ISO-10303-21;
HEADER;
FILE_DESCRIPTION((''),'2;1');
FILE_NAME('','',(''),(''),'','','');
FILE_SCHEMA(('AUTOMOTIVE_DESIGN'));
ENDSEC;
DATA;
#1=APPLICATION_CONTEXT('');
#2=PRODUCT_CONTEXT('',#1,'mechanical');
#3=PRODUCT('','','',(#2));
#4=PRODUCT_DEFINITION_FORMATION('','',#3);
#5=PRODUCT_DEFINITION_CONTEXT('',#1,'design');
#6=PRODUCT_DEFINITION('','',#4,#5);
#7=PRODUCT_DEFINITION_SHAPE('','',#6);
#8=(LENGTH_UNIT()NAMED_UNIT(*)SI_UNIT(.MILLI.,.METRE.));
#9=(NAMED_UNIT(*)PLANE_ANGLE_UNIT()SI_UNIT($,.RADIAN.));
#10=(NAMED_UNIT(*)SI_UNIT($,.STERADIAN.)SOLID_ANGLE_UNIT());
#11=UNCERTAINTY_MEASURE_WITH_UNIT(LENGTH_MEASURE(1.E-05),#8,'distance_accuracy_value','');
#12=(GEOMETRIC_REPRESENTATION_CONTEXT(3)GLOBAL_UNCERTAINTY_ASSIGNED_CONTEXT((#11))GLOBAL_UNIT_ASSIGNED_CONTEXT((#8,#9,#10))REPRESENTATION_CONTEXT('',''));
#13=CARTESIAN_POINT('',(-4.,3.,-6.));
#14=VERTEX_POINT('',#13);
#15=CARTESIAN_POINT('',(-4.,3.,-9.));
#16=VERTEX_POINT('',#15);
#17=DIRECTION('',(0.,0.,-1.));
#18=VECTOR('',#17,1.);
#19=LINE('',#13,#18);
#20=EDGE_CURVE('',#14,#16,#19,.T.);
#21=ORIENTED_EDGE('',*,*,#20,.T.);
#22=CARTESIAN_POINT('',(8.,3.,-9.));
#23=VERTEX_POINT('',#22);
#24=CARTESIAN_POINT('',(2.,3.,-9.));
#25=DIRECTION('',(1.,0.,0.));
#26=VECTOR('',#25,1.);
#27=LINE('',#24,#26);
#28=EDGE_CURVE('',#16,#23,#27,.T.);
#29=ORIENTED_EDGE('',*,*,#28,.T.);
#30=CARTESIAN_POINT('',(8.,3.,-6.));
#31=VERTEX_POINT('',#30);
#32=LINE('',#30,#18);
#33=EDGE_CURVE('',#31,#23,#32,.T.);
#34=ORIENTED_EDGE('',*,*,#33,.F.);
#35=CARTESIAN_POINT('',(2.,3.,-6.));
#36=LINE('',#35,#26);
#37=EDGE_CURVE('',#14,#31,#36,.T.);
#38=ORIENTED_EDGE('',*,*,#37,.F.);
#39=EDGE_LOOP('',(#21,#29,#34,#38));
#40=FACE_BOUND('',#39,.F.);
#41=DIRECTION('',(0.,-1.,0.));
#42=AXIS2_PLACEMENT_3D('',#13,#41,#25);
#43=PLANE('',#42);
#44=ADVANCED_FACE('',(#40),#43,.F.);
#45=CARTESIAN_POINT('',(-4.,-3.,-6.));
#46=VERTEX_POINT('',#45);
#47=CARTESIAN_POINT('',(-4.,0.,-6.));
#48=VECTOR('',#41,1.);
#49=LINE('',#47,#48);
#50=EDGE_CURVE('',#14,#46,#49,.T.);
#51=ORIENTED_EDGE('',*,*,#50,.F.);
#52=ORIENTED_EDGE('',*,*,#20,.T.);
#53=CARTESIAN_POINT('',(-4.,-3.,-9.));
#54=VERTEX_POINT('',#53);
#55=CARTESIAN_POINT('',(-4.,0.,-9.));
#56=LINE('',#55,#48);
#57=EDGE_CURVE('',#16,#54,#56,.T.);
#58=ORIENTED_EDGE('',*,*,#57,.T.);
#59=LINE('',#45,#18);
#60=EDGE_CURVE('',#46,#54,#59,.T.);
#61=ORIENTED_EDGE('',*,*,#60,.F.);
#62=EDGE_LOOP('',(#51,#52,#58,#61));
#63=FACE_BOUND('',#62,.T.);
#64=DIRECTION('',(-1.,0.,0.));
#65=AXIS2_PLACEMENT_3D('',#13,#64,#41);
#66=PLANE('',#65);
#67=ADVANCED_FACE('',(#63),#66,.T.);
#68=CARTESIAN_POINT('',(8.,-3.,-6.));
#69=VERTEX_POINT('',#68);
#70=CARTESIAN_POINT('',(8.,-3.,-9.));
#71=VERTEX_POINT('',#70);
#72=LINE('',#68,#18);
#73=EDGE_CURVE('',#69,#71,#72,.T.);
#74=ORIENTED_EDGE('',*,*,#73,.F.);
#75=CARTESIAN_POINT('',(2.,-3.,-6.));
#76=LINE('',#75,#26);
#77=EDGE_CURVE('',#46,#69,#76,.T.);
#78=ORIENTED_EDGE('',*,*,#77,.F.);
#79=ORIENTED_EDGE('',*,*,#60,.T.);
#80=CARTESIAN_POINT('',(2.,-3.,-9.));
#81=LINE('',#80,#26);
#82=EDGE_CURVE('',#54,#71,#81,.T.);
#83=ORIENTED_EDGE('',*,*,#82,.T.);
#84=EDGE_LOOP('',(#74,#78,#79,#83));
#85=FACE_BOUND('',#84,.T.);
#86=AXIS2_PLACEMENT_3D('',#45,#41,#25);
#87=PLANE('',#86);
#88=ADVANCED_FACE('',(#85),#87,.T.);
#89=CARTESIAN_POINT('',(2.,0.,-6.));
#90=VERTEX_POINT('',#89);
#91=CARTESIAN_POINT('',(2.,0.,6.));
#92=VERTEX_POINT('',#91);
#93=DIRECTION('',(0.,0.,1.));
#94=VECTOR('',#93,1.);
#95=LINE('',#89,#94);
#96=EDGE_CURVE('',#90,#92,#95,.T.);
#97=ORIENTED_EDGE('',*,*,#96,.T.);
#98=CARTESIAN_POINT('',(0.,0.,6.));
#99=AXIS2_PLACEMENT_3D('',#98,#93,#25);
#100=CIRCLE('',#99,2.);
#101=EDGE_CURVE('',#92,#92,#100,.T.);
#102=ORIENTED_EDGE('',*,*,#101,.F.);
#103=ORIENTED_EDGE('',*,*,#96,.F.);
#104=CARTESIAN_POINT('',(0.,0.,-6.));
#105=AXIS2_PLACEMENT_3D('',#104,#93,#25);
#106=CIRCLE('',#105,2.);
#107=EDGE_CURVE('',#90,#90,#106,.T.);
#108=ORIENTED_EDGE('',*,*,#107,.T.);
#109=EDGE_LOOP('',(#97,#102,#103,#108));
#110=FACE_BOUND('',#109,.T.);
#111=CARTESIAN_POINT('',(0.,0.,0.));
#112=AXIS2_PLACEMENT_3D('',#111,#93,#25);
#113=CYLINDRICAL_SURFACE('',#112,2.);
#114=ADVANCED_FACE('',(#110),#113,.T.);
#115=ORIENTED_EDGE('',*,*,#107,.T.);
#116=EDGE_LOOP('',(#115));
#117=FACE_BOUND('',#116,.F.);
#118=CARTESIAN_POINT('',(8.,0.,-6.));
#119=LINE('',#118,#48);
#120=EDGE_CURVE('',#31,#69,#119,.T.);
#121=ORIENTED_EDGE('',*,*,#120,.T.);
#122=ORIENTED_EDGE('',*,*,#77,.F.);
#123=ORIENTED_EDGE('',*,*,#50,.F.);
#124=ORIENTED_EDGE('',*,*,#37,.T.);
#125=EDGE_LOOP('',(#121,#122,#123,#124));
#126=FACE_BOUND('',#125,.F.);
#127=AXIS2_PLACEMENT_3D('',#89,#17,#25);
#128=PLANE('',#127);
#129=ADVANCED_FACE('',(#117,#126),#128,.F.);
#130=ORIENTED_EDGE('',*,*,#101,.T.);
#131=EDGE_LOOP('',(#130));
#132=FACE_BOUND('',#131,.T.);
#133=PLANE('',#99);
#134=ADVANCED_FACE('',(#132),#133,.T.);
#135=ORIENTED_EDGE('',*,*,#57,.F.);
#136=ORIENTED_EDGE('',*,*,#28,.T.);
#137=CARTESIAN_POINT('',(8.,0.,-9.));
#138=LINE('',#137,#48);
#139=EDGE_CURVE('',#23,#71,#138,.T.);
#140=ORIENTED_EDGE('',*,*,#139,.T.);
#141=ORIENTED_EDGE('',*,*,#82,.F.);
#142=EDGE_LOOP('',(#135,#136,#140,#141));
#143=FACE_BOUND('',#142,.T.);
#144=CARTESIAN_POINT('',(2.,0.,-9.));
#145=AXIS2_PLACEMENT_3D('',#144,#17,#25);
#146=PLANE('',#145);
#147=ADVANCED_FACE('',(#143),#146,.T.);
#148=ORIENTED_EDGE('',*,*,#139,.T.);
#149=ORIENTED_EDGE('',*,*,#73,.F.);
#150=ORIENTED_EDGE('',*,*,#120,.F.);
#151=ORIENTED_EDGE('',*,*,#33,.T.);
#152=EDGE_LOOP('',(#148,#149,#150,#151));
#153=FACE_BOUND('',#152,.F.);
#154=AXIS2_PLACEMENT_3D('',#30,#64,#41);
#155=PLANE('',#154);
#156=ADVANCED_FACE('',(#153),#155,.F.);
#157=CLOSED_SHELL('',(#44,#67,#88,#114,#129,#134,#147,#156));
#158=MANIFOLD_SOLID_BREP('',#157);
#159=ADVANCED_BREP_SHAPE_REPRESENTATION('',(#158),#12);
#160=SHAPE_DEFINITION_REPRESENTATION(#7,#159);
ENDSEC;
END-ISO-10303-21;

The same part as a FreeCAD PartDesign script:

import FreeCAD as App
import Part
import Sketcher
Q = App.Units.Quantity

doc = App.newDocument("Part")
body = doc.addObject("PartDesign::Body", "Body")

sketch1 = doc.addObject("Sketcher::SketchObject", "Sketch")
body.addObject(sketch1)
sketch1.AttachmentSupport = (doc.XY_Plane, [""])
sketch1.MapMode = "FlatFace"
sketch1.addGeometry(Part.Circle(App.Vector(0, 0, 0), App.Vector(0, 0, 1), 2), False)
sketch1.addConstraint(Sketcher.Constraint("Coincident", 0, 3, -1, 1))
sketch1.addConstraint(Sketcher.Constraint("Diameter", 0, Q("4 mm")))
pad1 = doc.addObject("PartDesign::Pad", "Pad")
body.addObject(pad1)
pad1.Profile = sketch1
pad1.Length = 12
pad1.Midplane = True

sketch2 = doc.addObject("Sketcher::SketchObject", "Sketch001")
body.addObject(sketch2)
sketch2.AttachmentSupport = (doc.XY_Plane, [""])
sketch2.MapMode = "FlatFace"
sketch2.AttachmentOffset = App.Placement(App.Vector(0, 0, -6), App.Rotation())
sketch2.addGeometry(Part.LineSegment(App.Vector(-4, -3, 0), App.Vector(-4, 3, 0)), False)
sketch2.addGeometry(Part.LineSegment(App.Vector(-4, 3, 0), App.Vector(8, 3, 0)), False)
sketch2.addGeometry(Part.LineSegment(App.Vector(8, 3, 0), App.Vector(8, -3, 0)), False)
sketch2.addGeometry(Part.LineSegment(App.Vector(8, -3, 0), App.Vector(-4, -3, 0)), False)
sketch2.addConstraint(Sketcher.Constraint("Coincident", 0, 2, 1, 1))
sketch2.addConstraint(Sketcher.Constraint("Coincident", 1, 2, 2, 1))
sketch2.addConstraint(Sketcher.Constraint("Coincident", 2, 2, 3, 1))
sketch2.addConstraint(Sketcher.Constraint("Coincident", 3, 2, 0, 1))
sketch2.addConstraint(Sketcher.Constraint("Vertical", 0))
sketch2.addConstraint(Sketcher.Constraint("Horizontal", 1))
sketch2.addConstraint(Sketcher.Constraint("Vertical", 2))
sketch2.addConstraint(Sketcher.Constraint("Horizontal", 3))
sketch2.addConstraint(Sketcher.Constraint("DistanceX", 1, 1, 1, 2, Q("12 mm")))
sketch2.addConstraint(Sketcher.Constraint("DistanceY", 0, 1, 0, 2, Q("6 mm")))
sketch2.addConstraint(Sketcher.Constraint("DistanceX", 0, 2, -1, 1, Q("4 mm")))
sketch2.addConstraint(Sketcher.Constraint("DistanceY", -1, 1, 0, 2, Q("3 mm")))
pad2 = doc.addObject("PartDesign::Pad", "Pad001")
body.addObject(pad2)
pad2.Profile = sketch2
pad2.Length = 3
pad2.Reversed = True

doc.recompute()
